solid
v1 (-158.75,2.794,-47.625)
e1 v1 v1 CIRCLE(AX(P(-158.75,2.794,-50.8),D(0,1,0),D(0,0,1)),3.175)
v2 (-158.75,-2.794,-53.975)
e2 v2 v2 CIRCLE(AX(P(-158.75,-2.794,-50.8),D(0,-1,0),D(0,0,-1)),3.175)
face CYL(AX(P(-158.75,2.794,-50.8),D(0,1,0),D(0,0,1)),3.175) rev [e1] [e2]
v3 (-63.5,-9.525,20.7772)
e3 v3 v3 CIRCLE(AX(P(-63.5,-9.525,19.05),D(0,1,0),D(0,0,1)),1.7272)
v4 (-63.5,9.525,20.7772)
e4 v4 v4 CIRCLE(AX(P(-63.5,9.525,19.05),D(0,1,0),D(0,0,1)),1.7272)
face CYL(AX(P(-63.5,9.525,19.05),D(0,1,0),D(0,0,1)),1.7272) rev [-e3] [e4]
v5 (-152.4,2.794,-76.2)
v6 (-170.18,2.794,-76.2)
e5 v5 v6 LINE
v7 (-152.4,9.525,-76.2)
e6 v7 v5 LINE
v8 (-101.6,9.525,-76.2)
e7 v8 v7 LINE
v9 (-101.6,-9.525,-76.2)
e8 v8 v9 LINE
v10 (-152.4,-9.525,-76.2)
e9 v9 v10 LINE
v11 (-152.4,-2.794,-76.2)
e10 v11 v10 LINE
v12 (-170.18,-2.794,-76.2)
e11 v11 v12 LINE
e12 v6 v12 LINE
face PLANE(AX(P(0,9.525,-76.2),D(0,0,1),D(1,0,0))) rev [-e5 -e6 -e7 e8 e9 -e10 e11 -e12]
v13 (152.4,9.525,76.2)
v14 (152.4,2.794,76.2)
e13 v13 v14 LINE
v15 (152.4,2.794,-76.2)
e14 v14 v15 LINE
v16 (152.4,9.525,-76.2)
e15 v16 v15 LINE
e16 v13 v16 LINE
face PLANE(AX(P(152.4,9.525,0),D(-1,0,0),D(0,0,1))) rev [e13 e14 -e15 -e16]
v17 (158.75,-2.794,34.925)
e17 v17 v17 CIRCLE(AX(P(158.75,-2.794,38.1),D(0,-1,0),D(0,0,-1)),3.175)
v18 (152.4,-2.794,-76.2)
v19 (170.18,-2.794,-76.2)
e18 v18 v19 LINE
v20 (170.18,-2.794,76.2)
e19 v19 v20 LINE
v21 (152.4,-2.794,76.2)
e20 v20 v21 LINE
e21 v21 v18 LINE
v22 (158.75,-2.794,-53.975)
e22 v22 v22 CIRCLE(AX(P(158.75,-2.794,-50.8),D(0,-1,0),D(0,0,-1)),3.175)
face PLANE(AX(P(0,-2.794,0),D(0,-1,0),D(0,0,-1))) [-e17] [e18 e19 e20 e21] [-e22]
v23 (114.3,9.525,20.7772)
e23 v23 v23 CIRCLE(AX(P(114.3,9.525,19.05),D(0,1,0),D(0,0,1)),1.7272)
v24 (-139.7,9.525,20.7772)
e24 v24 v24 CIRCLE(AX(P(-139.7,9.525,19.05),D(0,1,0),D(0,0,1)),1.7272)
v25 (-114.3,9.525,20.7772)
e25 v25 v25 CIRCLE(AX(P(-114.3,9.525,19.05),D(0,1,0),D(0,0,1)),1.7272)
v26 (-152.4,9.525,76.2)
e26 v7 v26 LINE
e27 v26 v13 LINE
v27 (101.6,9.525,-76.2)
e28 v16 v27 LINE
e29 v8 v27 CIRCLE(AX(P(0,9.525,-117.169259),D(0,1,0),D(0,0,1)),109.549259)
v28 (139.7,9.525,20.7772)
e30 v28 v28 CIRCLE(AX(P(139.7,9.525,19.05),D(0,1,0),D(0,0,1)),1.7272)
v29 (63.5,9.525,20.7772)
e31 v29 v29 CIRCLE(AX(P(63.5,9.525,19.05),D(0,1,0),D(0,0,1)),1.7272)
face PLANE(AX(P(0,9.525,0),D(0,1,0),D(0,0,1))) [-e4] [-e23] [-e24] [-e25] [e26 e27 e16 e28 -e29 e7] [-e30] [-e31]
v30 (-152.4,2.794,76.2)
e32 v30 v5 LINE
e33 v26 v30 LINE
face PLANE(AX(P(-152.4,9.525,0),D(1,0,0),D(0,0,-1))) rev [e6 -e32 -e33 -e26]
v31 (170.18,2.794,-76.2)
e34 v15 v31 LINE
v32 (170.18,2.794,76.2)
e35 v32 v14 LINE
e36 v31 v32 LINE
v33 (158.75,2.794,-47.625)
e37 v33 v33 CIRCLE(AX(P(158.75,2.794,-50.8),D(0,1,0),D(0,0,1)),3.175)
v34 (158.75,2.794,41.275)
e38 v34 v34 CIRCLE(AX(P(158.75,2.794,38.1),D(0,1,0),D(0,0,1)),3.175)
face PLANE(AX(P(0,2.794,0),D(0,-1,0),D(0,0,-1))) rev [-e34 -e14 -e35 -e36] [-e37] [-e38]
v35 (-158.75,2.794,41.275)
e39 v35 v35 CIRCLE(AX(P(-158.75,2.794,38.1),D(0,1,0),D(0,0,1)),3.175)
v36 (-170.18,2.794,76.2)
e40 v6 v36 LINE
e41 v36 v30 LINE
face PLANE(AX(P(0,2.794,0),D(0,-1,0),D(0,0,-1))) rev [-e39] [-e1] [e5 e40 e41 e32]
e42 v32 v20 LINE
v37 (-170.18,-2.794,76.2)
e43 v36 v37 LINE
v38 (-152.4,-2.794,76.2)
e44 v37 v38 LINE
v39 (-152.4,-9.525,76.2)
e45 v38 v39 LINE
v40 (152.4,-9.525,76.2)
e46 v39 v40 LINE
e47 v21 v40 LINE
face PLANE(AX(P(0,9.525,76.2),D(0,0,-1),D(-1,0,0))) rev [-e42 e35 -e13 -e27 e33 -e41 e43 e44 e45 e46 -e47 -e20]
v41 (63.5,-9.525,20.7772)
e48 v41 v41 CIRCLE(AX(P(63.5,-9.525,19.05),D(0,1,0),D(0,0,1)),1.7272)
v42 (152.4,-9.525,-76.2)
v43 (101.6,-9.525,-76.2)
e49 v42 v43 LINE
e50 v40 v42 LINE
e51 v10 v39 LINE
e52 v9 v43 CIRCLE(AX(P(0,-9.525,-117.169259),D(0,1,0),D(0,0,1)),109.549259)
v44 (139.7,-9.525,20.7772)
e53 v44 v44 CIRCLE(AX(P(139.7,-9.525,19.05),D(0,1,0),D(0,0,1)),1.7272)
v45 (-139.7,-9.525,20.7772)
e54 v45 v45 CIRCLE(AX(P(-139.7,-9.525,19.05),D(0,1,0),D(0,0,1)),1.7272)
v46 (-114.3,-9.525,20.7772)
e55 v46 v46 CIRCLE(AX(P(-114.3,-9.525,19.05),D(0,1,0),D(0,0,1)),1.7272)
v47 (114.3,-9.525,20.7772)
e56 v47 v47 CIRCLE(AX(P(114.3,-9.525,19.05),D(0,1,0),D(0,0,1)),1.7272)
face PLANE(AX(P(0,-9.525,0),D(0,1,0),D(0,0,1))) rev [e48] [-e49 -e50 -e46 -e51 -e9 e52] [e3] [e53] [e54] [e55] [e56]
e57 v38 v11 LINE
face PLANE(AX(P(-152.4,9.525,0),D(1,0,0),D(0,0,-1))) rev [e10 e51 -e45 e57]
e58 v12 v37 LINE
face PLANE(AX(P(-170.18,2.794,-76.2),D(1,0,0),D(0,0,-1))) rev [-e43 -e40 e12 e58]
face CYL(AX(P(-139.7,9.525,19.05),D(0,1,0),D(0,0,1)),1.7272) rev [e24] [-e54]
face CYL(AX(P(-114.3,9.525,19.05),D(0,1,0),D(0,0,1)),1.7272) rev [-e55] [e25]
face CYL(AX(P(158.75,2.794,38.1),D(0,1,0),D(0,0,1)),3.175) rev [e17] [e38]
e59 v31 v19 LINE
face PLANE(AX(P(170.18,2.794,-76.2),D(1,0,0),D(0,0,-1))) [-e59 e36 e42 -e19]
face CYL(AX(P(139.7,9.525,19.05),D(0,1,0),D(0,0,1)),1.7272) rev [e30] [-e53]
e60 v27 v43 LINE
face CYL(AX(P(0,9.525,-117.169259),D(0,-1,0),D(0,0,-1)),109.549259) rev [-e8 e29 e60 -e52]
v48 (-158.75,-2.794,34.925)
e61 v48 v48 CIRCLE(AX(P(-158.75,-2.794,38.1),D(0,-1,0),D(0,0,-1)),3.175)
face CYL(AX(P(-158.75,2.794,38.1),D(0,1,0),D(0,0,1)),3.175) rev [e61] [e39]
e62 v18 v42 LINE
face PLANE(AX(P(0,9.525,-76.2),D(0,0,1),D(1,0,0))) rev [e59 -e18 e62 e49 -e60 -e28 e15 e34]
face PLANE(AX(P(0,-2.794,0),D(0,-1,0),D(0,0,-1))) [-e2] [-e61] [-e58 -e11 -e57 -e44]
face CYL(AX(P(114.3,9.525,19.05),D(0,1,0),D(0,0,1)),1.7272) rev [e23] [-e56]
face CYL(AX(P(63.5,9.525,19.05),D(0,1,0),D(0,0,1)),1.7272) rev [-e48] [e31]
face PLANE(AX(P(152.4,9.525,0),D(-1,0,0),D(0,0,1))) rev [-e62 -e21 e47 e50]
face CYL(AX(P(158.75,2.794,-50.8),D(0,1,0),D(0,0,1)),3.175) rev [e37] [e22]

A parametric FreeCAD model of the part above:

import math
import FreeCAD as App
import Part
import Sketcher

V = App.Vector
Q = App.Units.Quantity


def add_polygon(sketch, points):
    """Adds a closed chain of lines whose ends are joined by coincident constraints."""
    first, n = sketch.GeometryCount, len(points)
    for a, b in zip(points, points[1:] + points[:1]):
        sketch.addGeometry(Part.LineSegment(App.Vector(*a, 0), App.Vector(*b, 0)), False)
    for i in range(n):
        sketch.addConstraint(Sketcher.Constraint("Coincident", first + i, 2, first + (i + 1) % n, 1))

doc = App.newDocument("Part")
body = doc.addObject("PartDesign::Body", "Body")

sketch1 = body.newObject("Sketcher::SketchObject", "Sketch")
sketch1.AttachmentSupport = (doc.getObject("XZ_Plane"), [""])
sketch1.MapMode = "FlatFace"
sketch1.addGeometry([
    Part.ArcOfCircle(Part.Circle(V(0, -117.169259, 0), V(0, 0, 1), 109.549259), math.radians(90), math.radians(158.0387)),
    Part.LineSegment(V(-101.6, -76.2, 0), V(-152.4, -76.2, 0)),
    Part.LineSegment(V(-152.4, -76.2, 0), V(-152.4, 76.2, 0)),
    Part.LineSegment(V(-152.4, 76.2, 0), V(152.4, 76.2, 0)),
    Part.LineSegment(V(152.4, 76.2, 0), V(152.4, -76.2, 0)),
    Part.LineSegment(V(152.4, -76.2, 0), V(101.6, -76.2, 0)),
    Part.ArcOfCircle(Part.Circle(V(0, -117.169259, 0), V(0, 0, 1), 109.549259), math.radians(21.9613), math.radians(90)),
], False)
sketch1.addConstraint([
    Sketcher.Constraint("Coincident", 0, 2, 1, 1),
    Sketcher.Constraint("Coincident", 1, 2, 2, 1),
    Sketcher.Constraint("Coincident", 2, 2, 3, 1),
    Sketcher.Constraint("Coincident", 3, 2, 4, 1),
    Sketcher.Constraint("Coincident", 4, 2, 5, 1),
    Sketcher.Constraint("Coincident", 5, 2, 6, 1),
    Sketcher.Constraint("Tangent", 6, 2, 0, 1),
    Sketcher.Constraint("Horizontal", 1),
    Sketcher.Constraint("Vertical", 2),
    Sketcher.Constraint("Horizontal", 3),
    Sketcher.Constraint("Vertical", 4),
    Sketcher.Constraint("Horizontal", 5),
    Sketcher.Constraint("Equal", 0, 6),
    Sketcher.Constraint("Symmetric", 1, 2, 3, 2, -1, 1),
    Sketcher.Constraint("Symmetric", 0, 2, 5, 2, -2),
    Sketcher.Constraint("PointOnObject", 6, 2, -2),
    Sketcher.Constraint("DistanceX", 1, 2, 1, 1, Q("2 in")),
    Sketcher.Constraint("DistanceX", 3, 1, 3, 2, Q("12 in")),
    Sketcher.Constraint("DistanceY", 2, 1, 2, 2, Q("6 in")),
    Sketcher.Constraint("DistanceY", 6, 2, -1, 1, Q("0.3 in")),
])
pad1 = body.newObject("PartDesign::Pad", "Pad")
pad1.Profile = sketch1
pad1.Length = Q("0.75 in")
pad1.Midplane = True

sketch2 = body.newObject("Sketcher::SketchObject", "Sketch001")
sketch2.AttachmentSupport = (doc.getObject("XZ_Plane"), [""])
sketch2.MapMode = "FlatFace"
sketch2.AttachmentOffset = App.Placement(V(0, 0, -0.375 * 25.4), App.Rotation())
sketch2.addGeometry([
    Part.Circle(V(-139.7, 19.05, 0), V(0, 0, 1), 1.7272),
    Part.Circle(V(-114.3, 19.05, 0), V(0, 0, 1), 1.7272),
    Part.Circle(V(-63.5, 19.05, 0), V(0, 0, 1), 1.7272),
], False)
sketch2.addConstraint([
    Sketcher.Constraint("Equal", 0, 1),
    Sketcher.Constraint("Equal", 1, 2),
    Sketcher.Constraint("Horizontal", 0, 3, 1, 3),
    Sketcher.Constraint("Horizontal", 1, 3, 2, 3),
    Sketcher.Constraint("Diameter", 0, Q("0.136 in")),
    Sketcher.Constraint("DistanceX", 0, 3, 1, 3, Q("1 in")),
    Sketcher.Constraint("DistanceX", 1, 3, 2, 3, Q("2 in")),
    Sketcher.Constraint("DistanceX", 0, 3, -1, 1, Q("5.5 in")),
    Sketcher.Constraint("DistanceY", -1, 1, 0, 3, Q("0.75 in")),
])
doc.recompute()
hole = body.newObject("PartDesign::Hole", "Hole")
hole.Profile = sketch2
hole.ThreadType = "None"
hole.Diameter = Q("0.136 in")
hole.DepthType = "ThroughAll"
hole.Reversed = True
doc.recompute()

mirrored = body.newObject("PartDesign::Mirrored", "Mirrored")
mirrored.Originals = [hole]
mirrored.MirrorPlane = (doc.getObject("YZ_Plane"), [""])
body.Tip = mirrored

sketch3 = body.newObject("Sketcher::SketchObject", "Sketch002")
sketch3.AttachmentSupport = (doc.getObject("XZ_Plane"), [""])
sketch3.MapMode = "FlatFace"
add_polygon(sketch3, [(-170.18, -76.2), (-170.18, 76.2), (-152.4, 76.2), (-152.4, -76.2)])
sketch3.addConstraint([
    Sketcher.Constraint("Vertical", 0),
    Sketcher.Constraint("Horizontal", 1),
    Sketcher.Constraint("Vertical", 2),
    Sketcher.Constraint("Horizontal", 3),
    Sketcher.Constraint("DistanceY", 0, 1, 0, 2, Q("6 in")),
    Sketcher.Constraint("DistanceX", 1, 1, 1, 2, Q("0.7 in")),
    Sketcher.Constraint("DistanceY", -1, 1, 0, 2, Q("3 in")),
    Sketcher.Constraint("DistanceX", 1, 2, -1, 1, Q("6 in")),
])
pad2 = body.newObject("PartDesign::Pad", "Pad001")
pad2.Profile = sketch3
pad2.Length = Q("0.22 in")
pad2.Midplane = True

sketch4 = body.newObject("Sketcher::SketchObject", "Sketch003")
sketch4.AttachmentSupport = (doc.getObject("XZ_Plane"), [""])
sketch4.MapMode = "FlatFace"
sketch4.AttachmentOffset = App.Placement(V(0, 0, -0.11 * 25.4), App.Rotation())
sketch4.addGeometry([
    Part.Circle(V(-158.75, -50.8, 0), V(0, 0, 1), 3.175),
    Part.Circle(V(-158.75, 38.1, 0), V(0, 0, 1), 3.175),
], False)
sketch4.addConstraint([
    Sketcher.Constraint("Equal", 0, 1),
    Sketcher.Constraint("Vertical", 0, 3, 1, 3),
    Sketcher.Constraint("Diameter", 0, Q("0.25 in")),
    Sketcher.Constraint("DistanceY", 0, 3, -1, 1, Q("2 in")),
    Sketcher.Constraint("DistanceY", -1, 1, 1, 3, Q("1.5 in")),
    Sketcher.Constraint("DistanceX", 0, 3, -1, 1, Q("6.25 in")),
])
doc.recompute()
hole2 = body.newObject("PartDesign::Hole", "Hole001")
hole2.Profile = sketch4
hole2.ThreadType = "None"
hole2.Diameter = Q("0.25 in")
hole2.DepthType = "ThroughAll"
hole2.Reversed = True
doc.recompute()

mirrored2 = body.newObject("PartDesign::Mirrored", "Mirrored001")
mirrored2.Originals = [pad2, hole2]
mirrored2.MirrorPlane = (doc.getObject("YZ_Plane"), [""])
body.Tip = mirrored2

doc.recompute()
